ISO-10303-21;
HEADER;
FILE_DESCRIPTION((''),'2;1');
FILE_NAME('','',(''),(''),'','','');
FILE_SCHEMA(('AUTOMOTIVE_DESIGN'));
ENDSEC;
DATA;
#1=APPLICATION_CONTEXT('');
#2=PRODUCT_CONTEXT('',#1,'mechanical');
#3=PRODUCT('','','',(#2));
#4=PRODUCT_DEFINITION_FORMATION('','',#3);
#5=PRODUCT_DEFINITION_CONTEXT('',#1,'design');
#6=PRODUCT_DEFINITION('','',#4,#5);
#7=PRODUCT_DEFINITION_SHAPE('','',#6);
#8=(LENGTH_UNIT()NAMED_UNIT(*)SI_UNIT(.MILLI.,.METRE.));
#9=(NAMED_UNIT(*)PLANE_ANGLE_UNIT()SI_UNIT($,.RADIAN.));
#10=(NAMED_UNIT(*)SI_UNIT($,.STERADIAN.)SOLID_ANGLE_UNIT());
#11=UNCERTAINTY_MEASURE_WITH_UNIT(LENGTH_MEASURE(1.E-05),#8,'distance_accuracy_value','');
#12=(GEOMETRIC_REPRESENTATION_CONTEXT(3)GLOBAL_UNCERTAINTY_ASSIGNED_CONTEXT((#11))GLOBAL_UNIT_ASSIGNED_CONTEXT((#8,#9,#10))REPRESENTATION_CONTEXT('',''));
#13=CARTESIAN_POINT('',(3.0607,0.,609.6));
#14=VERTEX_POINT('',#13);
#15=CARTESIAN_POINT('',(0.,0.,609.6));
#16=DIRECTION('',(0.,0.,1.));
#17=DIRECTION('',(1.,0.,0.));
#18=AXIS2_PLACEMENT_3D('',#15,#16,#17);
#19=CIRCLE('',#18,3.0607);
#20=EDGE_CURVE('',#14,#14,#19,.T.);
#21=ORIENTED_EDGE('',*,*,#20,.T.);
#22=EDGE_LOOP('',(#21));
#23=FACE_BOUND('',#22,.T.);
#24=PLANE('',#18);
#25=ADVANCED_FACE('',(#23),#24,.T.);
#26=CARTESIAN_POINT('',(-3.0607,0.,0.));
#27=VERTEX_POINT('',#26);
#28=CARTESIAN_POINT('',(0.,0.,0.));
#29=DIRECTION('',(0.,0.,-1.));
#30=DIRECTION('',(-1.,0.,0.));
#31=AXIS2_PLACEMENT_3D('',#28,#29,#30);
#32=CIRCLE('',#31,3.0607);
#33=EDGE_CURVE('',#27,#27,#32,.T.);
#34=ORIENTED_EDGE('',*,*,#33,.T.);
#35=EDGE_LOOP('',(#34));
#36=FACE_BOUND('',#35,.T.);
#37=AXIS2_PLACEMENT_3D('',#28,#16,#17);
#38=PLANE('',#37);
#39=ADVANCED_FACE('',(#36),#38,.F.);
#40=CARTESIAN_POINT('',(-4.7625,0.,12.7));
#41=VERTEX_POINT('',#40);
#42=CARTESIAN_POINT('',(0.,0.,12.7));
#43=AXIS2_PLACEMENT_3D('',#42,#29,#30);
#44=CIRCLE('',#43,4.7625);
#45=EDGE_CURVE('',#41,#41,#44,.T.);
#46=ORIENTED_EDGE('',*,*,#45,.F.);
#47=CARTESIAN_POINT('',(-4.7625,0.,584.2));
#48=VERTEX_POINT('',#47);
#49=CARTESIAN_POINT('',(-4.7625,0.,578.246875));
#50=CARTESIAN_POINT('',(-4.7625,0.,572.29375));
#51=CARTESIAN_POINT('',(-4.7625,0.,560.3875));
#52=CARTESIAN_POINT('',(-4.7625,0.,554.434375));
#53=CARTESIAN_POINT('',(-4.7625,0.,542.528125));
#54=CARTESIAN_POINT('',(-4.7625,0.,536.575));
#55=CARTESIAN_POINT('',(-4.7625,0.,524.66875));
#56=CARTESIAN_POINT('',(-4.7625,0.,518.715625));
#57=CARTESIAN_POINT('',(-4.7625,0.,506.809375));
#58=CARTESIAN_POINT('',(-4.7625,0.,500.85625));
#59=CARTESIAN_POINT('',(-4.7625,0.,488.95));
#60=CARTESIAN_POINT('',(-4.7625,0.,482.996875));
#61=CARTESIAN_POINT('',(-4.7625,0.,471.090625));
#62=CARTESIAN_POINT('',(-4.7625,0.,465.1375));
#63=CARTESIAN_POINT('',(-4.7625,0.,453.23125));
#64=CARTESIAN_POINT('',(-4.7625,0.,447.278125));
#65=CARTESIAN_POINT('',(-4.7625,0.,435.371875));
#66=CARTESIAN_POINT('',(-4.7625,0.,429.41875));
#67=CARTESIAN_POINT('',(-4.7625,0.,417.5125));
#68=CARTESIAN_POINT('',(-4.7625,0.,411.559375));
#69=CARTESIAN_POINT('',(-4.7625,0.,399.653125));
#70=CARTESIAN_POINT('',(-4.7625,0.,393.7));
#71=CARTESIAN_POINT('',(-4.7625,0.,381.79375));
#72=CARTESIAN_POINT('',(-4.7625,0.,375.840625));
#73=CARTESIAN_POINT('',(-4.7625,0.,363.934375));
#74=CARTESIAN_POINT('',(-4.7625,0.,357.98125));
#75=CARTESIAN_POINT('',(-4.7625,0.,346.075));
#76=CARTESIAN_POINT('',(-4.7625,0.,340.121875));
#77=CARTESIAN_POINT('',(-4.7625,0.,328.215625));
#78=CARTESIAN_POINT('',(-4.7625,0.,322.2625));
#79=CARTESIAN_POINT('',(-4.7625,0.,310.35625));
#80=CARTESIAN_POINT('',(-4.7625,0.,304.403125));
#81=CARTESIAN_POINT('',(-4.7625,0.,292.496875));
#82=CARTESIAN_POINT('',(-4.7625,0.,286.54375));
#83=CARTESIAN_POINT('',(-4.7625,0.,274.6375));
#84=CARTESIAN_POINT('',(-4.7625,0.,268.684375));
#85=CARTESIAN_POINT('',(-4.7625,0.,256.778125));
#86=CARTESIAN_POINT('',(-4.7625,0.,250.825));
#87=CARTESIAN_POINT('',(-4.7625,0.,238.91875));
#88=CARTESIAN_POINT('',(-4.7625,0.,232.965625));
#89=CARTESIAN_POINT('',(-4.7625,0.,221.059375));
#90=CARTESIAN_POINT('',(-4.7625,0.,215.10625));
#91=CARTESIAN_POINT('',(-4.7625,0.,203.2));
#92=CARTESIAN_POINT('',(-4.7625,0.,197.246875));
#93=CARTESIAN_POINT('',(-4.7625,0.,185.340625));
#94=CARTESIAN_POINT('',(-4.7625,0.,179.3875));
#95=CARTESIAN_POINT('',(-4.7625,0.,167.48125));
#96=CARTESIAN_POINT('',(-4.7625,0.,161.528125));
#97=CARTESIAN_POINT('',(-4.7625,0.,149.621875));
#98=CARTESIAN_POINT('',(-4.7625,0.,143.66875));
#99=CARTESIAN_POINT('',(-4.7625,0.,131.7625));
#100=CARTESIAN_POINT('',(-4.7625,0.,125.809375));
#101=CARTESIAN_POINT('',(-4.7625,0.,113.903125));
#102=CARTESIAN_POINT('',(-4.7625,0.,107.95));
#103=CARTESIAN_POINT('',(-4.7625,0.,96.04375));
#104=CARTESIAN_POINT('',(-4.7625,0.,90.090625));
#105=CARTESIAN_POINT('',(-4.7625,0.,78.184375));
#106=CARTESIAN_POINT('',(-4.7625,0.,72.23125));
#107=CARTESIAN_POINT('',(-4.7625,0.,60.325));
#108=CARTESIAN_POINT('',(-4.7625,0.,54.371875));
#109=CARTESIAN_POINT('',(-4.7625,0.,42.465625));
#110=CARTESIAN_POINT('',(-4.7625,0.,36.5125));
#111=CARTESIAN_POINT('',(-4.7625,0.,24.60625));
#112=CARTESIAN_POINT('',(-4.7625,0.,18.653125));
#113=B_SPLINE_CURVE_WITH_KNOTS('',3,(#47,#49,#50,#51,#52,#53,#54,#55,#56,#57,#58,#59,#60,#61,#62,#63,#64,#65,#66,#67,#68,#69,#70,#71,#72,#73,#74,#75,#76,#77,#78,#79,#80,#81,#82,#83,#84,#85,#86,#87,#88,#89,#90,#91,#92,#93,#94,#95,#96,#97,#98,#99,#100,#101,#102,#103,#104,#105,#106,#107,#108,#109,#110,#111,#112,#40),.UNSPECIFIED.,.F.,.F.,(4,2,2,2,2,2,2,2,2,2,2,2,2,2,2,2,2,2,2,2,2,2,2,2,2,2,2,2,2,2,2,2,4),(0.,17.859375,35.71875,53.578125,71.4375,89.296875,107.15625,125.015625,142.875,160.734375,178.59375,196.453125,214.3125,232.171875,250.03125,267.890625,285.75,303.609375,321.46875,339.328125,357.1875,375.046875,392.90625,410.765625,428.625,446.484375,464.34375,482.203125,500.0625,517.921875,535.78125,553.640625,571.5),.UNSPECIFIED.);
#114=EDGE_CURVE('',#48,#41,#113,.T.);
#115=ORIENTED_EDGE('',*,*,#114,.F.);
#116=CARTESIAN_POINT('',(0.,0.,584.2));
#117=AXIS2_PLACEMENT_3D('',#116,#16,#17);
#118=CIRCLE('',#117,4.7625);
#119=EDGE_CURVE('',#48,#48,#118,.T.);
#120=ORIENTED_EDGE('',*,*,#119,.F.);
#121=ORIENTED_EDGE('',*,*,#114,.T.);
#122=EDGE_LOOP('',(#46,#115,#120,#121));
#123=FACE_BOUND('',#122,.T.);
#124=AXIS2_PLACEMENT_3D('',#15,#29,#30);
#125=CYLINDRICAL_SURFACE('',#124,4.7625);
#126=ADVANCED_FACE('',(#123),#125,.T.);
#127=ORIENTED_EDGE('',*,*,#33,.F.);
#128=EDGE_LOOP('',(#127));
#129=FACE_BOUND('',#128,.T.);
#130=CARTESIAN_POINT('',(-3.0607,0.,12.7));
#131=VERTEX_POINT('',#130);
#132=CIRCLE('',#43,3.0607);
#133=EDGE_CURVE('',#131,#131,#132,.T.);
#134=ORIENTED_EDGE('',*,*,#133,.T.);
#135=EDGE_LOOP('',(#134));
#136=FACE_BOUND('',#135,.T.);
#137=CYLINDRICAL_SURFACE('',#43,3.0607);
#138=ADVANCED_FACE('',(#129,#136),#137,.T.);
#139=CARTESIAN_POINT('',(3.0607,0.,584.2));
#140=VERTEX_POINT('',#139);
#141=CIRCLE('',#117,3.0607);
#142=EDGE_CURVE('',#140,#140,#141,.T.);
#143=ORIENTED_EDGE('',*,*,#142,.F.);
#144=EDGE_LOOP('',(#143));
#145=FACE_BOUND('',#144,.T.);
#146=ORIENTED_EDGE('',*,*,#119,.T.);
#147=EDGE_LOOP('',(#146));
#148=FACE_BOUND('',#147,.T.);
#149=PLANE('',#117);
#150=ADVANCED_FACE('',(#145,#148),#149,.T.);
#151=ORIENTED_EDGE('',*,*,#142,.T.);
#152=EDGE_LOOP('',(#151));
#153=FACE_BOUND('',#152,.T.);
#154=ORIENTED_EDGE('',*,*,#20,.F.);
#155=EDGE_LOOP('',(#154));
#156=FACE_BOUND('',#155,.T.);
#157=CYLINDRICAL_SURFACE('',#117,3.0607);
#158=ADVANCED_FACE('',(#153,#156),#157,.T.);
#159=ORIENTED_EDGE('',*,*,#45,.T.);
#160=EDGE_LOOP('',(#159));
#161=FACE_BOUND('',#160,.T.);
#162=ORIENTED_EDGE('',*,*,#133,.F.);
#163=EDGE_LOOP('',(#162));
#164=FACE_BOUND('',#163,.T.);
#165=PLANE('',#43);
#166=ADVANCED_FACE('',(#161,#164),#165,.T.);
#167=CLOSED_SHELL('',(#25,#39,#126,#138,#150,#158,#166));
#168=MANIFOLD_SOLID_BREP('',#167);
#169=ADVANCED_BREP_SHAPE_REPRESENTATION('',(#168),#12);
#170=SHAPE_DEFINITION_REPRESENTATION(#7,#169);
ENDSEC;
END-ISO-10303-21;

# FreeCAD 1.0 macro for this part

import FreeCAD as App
import Part
import Sketcher

V = App.Vector
Q = App.Units.Quantity

doc = App.newDocument("Part")
params = doc.addObject("Spreadsheet::Sheet", "Params")
for row, (alias, value) in enumerate([
    ("sketch1_diameter", "0.375 in"),
    ("pad1_length", "24 in"),
    ("sketch2_diameter", "0.375 in"),
    ("sketch2_diameter2", "0.241 in"),
    ("pocket1_length", "1 in"),
    ("sketch3_diameter", "0.375 in"),
    ("sketch3_diameter2", "0.241 in"),
    ("pocket2_length", "0.5 in"),
], start=1):
    params.set(f"A{row}", alias)
    params.set(f"B{row}", "=" + value)
    params.setAlias(f"B{row}", alias)

body = doc.addObject("PartDesign::Body", "Body")

sketch1 = doc.addObject("Sketcher::SketchObject", "Sketch")
body.addObject(sketch1)
sketch1.AttachmentSupport = (doc.XY_Plane, [""])
sketch1.MapMode = "FlatFace"
sketch1.addGeometry(Part.Circle(V(0, 0, 0), V(0, 0, 1), 4.7625), False)
sketch1.addConstraint(Sketcher.Constraint("Coincident", 0, 3, -1, 1))
sketch1.addConstraint(Sketcher.Constraint("Diameter", 0, Q("0.375 in")))
sketch1.setExpression("Constraints[1]", "Params.sketch1_diameter")
pad1 = doc.addObject("PartDesign::Pad", "Pad")
body.addObject(pad1)
pad1.Profile = sketch1
pad1.setExpression("Length", "Params.pad1_length")

sketch2 = doc.addObject("Sketcher::SketchObject", "Sketch001")
body.addObject(sketch2)
sketch2.AttachmentSupport = (doc.XY_Plane, [""])
sketch2.MapMode = "FlatFace"
sketch2.AttachmentOffset = App.Placement(V(0, 0, 23 * 25.4), App.Rotation())
sketch2.addGeometry(Part.Circle(V(0, 0, 0), V(0, 0, 1), 4.7625), False)
sketch2.addGeometry(Part.Circle(V(0, 0, 0), V(0, 0, 1), 3.0607), False)
sketch2.addConstraint(Sketcher.Constraint("Coincident", 0, 3, -1, 1))
sketch2.addConstraint(Sketcher.Constraint("Coincident", 1, 3, -1, 1))
sketch2.addConstraint(Sketcher.Constraint("Diameter", 0, Q("0.375 in")))
sketch2.addConstraint(Sketcher.Constraint("Diameter", 1, Q("0.241 in")))
sketch2.setExpression("Constraints[2]", "Params.sketch2_diameter")
sketch2.setExpression("Constraints[3]", "Params.sketch2_diameter2")
pocket1 = doc.addObject("PartDesign::Pocket", "Pocket")
body.addObject(pocket1)
pocket1.Profile = sketch2
pocket1.setExpression("Length", "Params.pocket1_length")
pocket1.Reversed = True

sketch3 = doc.addObject("Sketcher::SketchObject", "Sketch002")
body.addObject(sketch3)
sketch3.AttachmentSupport = (doc.XY_Plane, [""])
sketch3.MapMode = "FlatFace"
sketch3.addGeometry(Part.Circle(V(0, 0, 0), V(0, 0, 1), 4.7625), False)
sketch3.addGeometry(Part.Circle(V(0, 0, 0), V(0, 0, 1), 3.0607), False)
sketch3.addConstraint(Sketcher.Constraint("Coincident", 0, 3, -1, 1))
sketch3.addConstraint(Sketcher.Constraint("Coincident", 1, 3, -1, 1))
sketch3.addConstraint(Sketcher.Constraint("Diameter", 0, Q("0.375 in")))
sketch3.addConstraint(Sketcher.Constraint("Diameter", 1, Q("0.241 in")))
sketch3.setExpression("Constraints[2]", "Params.sketch3_diameter")
sketch3.setExpression("Constraints[3]", "Params.sketch3_diameter2")
pocket2 = doc.addObject("PartDesign::Pocket", "Pocket001")
body.addObject(pocket2)
pocket2.Profile = sketch3
pocket2.setExpression("Length", "Params.pocket2_length")
pocket2.Reversed = True

doc.recompute()
